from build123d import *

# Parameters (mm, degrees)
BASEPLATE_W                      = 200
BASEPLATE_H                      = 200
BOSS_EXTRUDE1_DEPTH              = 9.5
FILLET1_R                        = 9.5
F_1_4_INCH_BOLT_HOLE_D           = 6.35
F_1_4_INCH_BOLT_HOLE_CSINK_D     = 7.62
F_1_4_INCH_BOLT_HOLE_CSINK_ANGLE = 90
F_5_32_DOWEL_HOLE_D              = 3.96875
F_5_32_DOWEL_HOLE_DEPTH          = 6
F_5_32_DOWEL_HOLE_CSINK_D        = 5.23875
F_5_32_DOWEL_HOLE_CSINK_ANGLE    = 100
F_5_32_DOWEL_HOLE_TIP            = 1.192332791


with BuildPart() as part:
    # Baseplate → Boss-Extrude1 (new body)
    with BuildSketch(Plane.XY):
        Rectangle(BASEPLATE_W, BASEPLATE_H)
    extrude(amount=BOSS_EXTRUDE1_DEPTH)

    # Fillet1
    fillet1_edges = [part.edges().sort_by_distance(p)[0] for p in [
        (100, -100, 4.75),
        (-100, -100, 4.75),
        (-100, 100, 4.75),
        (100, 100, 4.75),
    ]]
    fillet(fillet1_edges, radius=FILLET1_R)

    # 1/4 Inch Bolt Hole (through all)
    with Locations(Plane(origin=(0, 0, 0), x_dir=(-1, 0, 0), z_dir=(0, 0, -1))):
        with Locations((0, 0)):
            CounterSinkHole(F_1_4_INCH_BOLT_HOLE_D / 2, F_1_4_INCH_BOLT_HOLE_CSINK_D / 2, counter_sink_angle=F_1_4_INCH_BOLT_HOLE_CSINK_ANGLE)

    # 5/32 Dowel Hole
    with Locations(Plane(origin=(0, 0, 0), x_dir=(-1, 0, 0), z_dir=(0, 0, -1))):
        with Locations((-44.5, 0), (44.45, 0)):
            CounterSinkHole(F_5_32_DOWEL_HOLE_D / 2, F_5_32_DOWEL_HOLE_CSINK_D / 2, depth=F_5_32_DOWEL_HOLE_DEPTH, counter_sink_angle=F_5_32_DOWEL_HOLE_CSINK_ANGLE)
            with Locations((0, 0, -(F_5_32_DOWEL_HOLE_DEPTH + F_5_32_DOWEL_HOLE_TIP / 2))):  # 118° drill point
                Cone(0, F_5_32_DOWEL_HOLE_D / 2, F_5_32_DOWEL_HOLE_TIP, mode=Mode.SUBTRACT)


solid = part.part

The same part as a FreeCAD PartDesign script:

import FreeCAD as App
import Part
import Sketcher

V = App.Vector


def edges_at(feature, points):
    """Names of the edges that pass closest to the given points."""
    edges = feature.Shape.Edges
    near = lambda p: min(range(len(edges)), key=lambda i: edges[i].distToShape(Part.Vertex(*p))[0])
    return sorted({f"Edge{near(p) + 1}" for p in points})

doc = App.newDocument("Part")
body = doc.addObject("PartDesign::Body", "Body")

# Sketch on XY plane
sketch1 = body.newObject("Sketcher::SketchObject", "Sketch")
sketch1.AttachmentSupport = (doc.getObject("XY_Plane"), [""])
sketch1.MapMode = "FlatFace"
sketch1.addGeometry(Part.LineSegment(V(-100, 100, 0), V(-100, -100, 0)), False)
sketch1.addGeometry(Part.LineSegment(V(-100, -100, 0), V(100, -100, 0)), False)
sketch1.addGeometry(Part.LineSegment(V(100, -100, 0), V(100, 100, 0)), False)
sketch1.addGeometry(Part.LineSegment(V(100, 100, 0), V(-100, 100, 0)), False)
sketch1.addConstraint(Sketcher.Constraint("Coincident", 0, 2, 1, 1))
sketch1.addConstraint(Sketcher.Constraint("Coincident", 1, 2, 2, 1))
sketch1.addConstraint(Sketcher.Constraint("Coincident", 2, 2, 3, 1))
sketch1.addConstraint(Sketcher.Constraint("Coincident", 3, 2, 0, 1))
sketch1.addConstraint(Sketcher.Constraint("Vertical", 0))
sketch1.addConstraint(Sketcher.Constraint("Horizontal", 1))
sketch1.addConstraint(Sketcher.Constraint("Vertical", 2))
sketch1.addConstraint(Sketcher.Constraint("Horizontal", 3))
sketch1.addConstraint(Sketcher.Constraint("Symmetric", 0, 2, 2, 2, -1, 1))
sketch1.addConstraint(Sketcher.Constraint("Equal", 3, 0))
sketch1.addConstraint(Sketcher.Constraint("DistanceX", 1, 1, 1, 2, 200.0))
pad1 = body.newObject("PartDesign::Pad", "Pad")
pad1.Profile = sketch1
pad1.Length = 9.5
doc.recompute()

fillet = body.newObject("PartDesign::Fillet", "Fillet")
fillet.Base = (pad1, edges_at(pad1, [
    (100, -100, 4.75),
    (-100, -100, 4.75),
    (-100, 100, 4.75),
    (100, 100, 4.75),
]))
fillet.Radius = 9.5

# Sketch on XY plane
sketch2 = body.newObject("Sketcher::SketchObject", "Sketch001")
sketch2.AttachmentSupport = (doc.getObject("XY_Plane"), [""])
sketch2.MapMode = "FlatFace"
sketch2.addGeometry(Part.Circle(V(0, 0, 0), V(0, 0, 1), 3.175), False)
sketch2.addConstraint(Sketcher.Constraint("Coincident", 0, 3, -1, 1))
sketch2.addConstraint(Sketcher.Constraint("Diameter", 0, 6.35))
doc.recompute()
hole = body.newObject("PartDesign::Hole", "Hole")
hole.Profile = sketch2
hole.ThreadType = "None"
hole.Diameter = 6.35
hole.DepthType = "ThroughAll"
hole.HoleCutType = "Countersink"
hole.HoleCutDiameter = 7.62
hole.HoleCutCountersinkAngle = 90
hole.Reversed = True

# Sketch on XY plane
sketch3 = body.newObject("Sketcher::SketchObject", "Sketch002")
sketch3.AttachmentSupport = (doc.getObject("XY_Plane"), [""])
sketch3.MapMode = "FlatFace"
sketch3.addGeometry(Part.Circle(V(44.5, 0, 0), V(0, 0, 1), 1.984375), False)
sketch3.addGeometry(Part.Circle(V(-44.45, 0, 0), V(0, 0, 1), 1.984375), False)
sketch3.addConstraint(Sketcher.Constraint("Equal", 0, 1))
sketch3.addConstraint(Sketcher.Constraint("PointOnObject", 0, 3, -1))
sketch3.addConstraint(Sketcher.Constraint("PointOnObject", 1, 3, -1))
sketch3.addConstraint(Sketcher.Constraint("DistanceX", -1, 1, 0, 3, 44.5))
sketch3.addConstraint(Sketcher.Constraint("Diameter", 0, 3.96875))
sketch3.addConstraint(Sketcher.Constraint("DistanceX", 1, 3, -1, 1, 44.45))
doc.recompute()
hole2 = body.newObject("PartDesign::Hole", "Hole001")
hole2.Profile = sketch3
hole2.ThreadType = "None"
hole2.Diameter = 3.96875
hole2.DepthType = "Dimension"
hole2.Depth = 6
hole2.DrillPoint = "Angled"
hole2.DrillPointAngle = 118
hole2.HoleCutType = "Countersink"
hole2.HoleCutDiameter = 5.23875
hole2.HoleCutCountersinkAngle = 100
hole2.Reversed = True

doc.recompute()
